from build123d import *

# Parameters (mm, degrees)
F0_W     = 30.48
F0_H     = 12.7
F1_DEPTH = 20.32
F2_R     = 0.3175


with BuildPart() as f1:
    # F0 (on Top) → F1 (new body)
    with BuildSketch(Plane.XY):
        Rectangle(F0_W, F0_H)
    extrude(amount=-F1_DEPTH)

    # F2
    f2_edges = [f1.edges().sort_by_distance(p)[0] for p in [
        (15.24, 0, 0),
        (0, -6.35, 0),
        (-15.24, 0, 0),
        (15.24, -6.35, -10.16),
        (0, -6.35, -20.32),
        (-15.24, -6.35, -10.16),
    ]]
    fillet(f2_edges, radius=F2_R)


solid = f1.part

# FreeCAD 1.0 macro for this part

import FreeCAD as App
import Part
import Sketcher

V = App.Vector
Q = App.Units.Quantity


def edges_at(feature, points):
    """Names of the edges that pass closest to the given points."""
    edges = feature.Shape.Edges
    near = lambda p: min(range(len(edges)), key=lambda i: edges[i].distToShape(Part.Vertex(*p))[0])
    return sorted({f"Edge{near(p) + 1}" for p in points})


def add_polygon(sketch, points):
    """Adds a closed chain of lines whose ends are joined by coincident constraints."""
    first, n = sketch.GeometryCount, len(points)
    for a, b in zip(points, points[1:] + points[:1]):
        sketch.addGeometry(Part.LineSegment(App.Vector(*a, 0), App.Vector(*b, 0)), False)
    for i in range(n):
        sketch.addConstraint(Sketcher.Constraint("Coincident", first + i, 2, first + (i + 1) % n, 1))

doc = App.newDocument("Part")
body = doc.addObject("PartDesign::Body", "Body")

sketch1 = doc.addObject("Sketcher::SketchObject", "Sketch")
body.addObject(sketch1)
sketch1.AttachmentSupport = (doc.XY_Plane, [""])
sketch1.MapMode = "FlatFace"
add_polygon(sketch1, [(-15, 6), (-15, -6), (15, -6), (15, 6)])
sketch1.addConstraint(Sketcher.Constraint("Vertical", 0))
sketch1.addConstraint(Sketcher.Constraint("Horizontal", 1))
sketch1.addConstraint(Sketcher.Constraint("Vertical", 2))
sketch1.addConstraint(Sketcher.Constraint("Horizontal", 3))
sketch1.addConstraint(Sketcher.Constraint("Symmetric", 0, 2, 2, 2, -1, 1))
sketch1.addConstraint(Sketcher.Constraint("DistanceX", 1, 1, 1, 2, Q("1.2 in")))
sketch1.addConstraint(Sketcher.Constraint("DistanceY", 0, 2, 0, 1, Q("0.5 in")))
pad1 = doc.addObject("PartDesign::Pad", "Pad")
body.addObject(pad1)
pad1.Profile = sketch1
pad1.Length = Q("0.8 in")
pad1.Reversed = True
doc.recompute()

fillet = doc.addObject("PartDesign::Fillet", "Fillet")
body.addObject(fillet)
fillet.Base = (pad1, edges_at(pad1, [
    (15.24, 0, 0),
    (0, -6.35, 0),
    (-15.24, 0, 0),
    (15.24, -6.35, -10.16),
    (0, -6.35, -20.32),
    (-15.24, -6.35, -10.16),
]))
fillet.Radius = Q("0.0125 in")

doc.recompute()
